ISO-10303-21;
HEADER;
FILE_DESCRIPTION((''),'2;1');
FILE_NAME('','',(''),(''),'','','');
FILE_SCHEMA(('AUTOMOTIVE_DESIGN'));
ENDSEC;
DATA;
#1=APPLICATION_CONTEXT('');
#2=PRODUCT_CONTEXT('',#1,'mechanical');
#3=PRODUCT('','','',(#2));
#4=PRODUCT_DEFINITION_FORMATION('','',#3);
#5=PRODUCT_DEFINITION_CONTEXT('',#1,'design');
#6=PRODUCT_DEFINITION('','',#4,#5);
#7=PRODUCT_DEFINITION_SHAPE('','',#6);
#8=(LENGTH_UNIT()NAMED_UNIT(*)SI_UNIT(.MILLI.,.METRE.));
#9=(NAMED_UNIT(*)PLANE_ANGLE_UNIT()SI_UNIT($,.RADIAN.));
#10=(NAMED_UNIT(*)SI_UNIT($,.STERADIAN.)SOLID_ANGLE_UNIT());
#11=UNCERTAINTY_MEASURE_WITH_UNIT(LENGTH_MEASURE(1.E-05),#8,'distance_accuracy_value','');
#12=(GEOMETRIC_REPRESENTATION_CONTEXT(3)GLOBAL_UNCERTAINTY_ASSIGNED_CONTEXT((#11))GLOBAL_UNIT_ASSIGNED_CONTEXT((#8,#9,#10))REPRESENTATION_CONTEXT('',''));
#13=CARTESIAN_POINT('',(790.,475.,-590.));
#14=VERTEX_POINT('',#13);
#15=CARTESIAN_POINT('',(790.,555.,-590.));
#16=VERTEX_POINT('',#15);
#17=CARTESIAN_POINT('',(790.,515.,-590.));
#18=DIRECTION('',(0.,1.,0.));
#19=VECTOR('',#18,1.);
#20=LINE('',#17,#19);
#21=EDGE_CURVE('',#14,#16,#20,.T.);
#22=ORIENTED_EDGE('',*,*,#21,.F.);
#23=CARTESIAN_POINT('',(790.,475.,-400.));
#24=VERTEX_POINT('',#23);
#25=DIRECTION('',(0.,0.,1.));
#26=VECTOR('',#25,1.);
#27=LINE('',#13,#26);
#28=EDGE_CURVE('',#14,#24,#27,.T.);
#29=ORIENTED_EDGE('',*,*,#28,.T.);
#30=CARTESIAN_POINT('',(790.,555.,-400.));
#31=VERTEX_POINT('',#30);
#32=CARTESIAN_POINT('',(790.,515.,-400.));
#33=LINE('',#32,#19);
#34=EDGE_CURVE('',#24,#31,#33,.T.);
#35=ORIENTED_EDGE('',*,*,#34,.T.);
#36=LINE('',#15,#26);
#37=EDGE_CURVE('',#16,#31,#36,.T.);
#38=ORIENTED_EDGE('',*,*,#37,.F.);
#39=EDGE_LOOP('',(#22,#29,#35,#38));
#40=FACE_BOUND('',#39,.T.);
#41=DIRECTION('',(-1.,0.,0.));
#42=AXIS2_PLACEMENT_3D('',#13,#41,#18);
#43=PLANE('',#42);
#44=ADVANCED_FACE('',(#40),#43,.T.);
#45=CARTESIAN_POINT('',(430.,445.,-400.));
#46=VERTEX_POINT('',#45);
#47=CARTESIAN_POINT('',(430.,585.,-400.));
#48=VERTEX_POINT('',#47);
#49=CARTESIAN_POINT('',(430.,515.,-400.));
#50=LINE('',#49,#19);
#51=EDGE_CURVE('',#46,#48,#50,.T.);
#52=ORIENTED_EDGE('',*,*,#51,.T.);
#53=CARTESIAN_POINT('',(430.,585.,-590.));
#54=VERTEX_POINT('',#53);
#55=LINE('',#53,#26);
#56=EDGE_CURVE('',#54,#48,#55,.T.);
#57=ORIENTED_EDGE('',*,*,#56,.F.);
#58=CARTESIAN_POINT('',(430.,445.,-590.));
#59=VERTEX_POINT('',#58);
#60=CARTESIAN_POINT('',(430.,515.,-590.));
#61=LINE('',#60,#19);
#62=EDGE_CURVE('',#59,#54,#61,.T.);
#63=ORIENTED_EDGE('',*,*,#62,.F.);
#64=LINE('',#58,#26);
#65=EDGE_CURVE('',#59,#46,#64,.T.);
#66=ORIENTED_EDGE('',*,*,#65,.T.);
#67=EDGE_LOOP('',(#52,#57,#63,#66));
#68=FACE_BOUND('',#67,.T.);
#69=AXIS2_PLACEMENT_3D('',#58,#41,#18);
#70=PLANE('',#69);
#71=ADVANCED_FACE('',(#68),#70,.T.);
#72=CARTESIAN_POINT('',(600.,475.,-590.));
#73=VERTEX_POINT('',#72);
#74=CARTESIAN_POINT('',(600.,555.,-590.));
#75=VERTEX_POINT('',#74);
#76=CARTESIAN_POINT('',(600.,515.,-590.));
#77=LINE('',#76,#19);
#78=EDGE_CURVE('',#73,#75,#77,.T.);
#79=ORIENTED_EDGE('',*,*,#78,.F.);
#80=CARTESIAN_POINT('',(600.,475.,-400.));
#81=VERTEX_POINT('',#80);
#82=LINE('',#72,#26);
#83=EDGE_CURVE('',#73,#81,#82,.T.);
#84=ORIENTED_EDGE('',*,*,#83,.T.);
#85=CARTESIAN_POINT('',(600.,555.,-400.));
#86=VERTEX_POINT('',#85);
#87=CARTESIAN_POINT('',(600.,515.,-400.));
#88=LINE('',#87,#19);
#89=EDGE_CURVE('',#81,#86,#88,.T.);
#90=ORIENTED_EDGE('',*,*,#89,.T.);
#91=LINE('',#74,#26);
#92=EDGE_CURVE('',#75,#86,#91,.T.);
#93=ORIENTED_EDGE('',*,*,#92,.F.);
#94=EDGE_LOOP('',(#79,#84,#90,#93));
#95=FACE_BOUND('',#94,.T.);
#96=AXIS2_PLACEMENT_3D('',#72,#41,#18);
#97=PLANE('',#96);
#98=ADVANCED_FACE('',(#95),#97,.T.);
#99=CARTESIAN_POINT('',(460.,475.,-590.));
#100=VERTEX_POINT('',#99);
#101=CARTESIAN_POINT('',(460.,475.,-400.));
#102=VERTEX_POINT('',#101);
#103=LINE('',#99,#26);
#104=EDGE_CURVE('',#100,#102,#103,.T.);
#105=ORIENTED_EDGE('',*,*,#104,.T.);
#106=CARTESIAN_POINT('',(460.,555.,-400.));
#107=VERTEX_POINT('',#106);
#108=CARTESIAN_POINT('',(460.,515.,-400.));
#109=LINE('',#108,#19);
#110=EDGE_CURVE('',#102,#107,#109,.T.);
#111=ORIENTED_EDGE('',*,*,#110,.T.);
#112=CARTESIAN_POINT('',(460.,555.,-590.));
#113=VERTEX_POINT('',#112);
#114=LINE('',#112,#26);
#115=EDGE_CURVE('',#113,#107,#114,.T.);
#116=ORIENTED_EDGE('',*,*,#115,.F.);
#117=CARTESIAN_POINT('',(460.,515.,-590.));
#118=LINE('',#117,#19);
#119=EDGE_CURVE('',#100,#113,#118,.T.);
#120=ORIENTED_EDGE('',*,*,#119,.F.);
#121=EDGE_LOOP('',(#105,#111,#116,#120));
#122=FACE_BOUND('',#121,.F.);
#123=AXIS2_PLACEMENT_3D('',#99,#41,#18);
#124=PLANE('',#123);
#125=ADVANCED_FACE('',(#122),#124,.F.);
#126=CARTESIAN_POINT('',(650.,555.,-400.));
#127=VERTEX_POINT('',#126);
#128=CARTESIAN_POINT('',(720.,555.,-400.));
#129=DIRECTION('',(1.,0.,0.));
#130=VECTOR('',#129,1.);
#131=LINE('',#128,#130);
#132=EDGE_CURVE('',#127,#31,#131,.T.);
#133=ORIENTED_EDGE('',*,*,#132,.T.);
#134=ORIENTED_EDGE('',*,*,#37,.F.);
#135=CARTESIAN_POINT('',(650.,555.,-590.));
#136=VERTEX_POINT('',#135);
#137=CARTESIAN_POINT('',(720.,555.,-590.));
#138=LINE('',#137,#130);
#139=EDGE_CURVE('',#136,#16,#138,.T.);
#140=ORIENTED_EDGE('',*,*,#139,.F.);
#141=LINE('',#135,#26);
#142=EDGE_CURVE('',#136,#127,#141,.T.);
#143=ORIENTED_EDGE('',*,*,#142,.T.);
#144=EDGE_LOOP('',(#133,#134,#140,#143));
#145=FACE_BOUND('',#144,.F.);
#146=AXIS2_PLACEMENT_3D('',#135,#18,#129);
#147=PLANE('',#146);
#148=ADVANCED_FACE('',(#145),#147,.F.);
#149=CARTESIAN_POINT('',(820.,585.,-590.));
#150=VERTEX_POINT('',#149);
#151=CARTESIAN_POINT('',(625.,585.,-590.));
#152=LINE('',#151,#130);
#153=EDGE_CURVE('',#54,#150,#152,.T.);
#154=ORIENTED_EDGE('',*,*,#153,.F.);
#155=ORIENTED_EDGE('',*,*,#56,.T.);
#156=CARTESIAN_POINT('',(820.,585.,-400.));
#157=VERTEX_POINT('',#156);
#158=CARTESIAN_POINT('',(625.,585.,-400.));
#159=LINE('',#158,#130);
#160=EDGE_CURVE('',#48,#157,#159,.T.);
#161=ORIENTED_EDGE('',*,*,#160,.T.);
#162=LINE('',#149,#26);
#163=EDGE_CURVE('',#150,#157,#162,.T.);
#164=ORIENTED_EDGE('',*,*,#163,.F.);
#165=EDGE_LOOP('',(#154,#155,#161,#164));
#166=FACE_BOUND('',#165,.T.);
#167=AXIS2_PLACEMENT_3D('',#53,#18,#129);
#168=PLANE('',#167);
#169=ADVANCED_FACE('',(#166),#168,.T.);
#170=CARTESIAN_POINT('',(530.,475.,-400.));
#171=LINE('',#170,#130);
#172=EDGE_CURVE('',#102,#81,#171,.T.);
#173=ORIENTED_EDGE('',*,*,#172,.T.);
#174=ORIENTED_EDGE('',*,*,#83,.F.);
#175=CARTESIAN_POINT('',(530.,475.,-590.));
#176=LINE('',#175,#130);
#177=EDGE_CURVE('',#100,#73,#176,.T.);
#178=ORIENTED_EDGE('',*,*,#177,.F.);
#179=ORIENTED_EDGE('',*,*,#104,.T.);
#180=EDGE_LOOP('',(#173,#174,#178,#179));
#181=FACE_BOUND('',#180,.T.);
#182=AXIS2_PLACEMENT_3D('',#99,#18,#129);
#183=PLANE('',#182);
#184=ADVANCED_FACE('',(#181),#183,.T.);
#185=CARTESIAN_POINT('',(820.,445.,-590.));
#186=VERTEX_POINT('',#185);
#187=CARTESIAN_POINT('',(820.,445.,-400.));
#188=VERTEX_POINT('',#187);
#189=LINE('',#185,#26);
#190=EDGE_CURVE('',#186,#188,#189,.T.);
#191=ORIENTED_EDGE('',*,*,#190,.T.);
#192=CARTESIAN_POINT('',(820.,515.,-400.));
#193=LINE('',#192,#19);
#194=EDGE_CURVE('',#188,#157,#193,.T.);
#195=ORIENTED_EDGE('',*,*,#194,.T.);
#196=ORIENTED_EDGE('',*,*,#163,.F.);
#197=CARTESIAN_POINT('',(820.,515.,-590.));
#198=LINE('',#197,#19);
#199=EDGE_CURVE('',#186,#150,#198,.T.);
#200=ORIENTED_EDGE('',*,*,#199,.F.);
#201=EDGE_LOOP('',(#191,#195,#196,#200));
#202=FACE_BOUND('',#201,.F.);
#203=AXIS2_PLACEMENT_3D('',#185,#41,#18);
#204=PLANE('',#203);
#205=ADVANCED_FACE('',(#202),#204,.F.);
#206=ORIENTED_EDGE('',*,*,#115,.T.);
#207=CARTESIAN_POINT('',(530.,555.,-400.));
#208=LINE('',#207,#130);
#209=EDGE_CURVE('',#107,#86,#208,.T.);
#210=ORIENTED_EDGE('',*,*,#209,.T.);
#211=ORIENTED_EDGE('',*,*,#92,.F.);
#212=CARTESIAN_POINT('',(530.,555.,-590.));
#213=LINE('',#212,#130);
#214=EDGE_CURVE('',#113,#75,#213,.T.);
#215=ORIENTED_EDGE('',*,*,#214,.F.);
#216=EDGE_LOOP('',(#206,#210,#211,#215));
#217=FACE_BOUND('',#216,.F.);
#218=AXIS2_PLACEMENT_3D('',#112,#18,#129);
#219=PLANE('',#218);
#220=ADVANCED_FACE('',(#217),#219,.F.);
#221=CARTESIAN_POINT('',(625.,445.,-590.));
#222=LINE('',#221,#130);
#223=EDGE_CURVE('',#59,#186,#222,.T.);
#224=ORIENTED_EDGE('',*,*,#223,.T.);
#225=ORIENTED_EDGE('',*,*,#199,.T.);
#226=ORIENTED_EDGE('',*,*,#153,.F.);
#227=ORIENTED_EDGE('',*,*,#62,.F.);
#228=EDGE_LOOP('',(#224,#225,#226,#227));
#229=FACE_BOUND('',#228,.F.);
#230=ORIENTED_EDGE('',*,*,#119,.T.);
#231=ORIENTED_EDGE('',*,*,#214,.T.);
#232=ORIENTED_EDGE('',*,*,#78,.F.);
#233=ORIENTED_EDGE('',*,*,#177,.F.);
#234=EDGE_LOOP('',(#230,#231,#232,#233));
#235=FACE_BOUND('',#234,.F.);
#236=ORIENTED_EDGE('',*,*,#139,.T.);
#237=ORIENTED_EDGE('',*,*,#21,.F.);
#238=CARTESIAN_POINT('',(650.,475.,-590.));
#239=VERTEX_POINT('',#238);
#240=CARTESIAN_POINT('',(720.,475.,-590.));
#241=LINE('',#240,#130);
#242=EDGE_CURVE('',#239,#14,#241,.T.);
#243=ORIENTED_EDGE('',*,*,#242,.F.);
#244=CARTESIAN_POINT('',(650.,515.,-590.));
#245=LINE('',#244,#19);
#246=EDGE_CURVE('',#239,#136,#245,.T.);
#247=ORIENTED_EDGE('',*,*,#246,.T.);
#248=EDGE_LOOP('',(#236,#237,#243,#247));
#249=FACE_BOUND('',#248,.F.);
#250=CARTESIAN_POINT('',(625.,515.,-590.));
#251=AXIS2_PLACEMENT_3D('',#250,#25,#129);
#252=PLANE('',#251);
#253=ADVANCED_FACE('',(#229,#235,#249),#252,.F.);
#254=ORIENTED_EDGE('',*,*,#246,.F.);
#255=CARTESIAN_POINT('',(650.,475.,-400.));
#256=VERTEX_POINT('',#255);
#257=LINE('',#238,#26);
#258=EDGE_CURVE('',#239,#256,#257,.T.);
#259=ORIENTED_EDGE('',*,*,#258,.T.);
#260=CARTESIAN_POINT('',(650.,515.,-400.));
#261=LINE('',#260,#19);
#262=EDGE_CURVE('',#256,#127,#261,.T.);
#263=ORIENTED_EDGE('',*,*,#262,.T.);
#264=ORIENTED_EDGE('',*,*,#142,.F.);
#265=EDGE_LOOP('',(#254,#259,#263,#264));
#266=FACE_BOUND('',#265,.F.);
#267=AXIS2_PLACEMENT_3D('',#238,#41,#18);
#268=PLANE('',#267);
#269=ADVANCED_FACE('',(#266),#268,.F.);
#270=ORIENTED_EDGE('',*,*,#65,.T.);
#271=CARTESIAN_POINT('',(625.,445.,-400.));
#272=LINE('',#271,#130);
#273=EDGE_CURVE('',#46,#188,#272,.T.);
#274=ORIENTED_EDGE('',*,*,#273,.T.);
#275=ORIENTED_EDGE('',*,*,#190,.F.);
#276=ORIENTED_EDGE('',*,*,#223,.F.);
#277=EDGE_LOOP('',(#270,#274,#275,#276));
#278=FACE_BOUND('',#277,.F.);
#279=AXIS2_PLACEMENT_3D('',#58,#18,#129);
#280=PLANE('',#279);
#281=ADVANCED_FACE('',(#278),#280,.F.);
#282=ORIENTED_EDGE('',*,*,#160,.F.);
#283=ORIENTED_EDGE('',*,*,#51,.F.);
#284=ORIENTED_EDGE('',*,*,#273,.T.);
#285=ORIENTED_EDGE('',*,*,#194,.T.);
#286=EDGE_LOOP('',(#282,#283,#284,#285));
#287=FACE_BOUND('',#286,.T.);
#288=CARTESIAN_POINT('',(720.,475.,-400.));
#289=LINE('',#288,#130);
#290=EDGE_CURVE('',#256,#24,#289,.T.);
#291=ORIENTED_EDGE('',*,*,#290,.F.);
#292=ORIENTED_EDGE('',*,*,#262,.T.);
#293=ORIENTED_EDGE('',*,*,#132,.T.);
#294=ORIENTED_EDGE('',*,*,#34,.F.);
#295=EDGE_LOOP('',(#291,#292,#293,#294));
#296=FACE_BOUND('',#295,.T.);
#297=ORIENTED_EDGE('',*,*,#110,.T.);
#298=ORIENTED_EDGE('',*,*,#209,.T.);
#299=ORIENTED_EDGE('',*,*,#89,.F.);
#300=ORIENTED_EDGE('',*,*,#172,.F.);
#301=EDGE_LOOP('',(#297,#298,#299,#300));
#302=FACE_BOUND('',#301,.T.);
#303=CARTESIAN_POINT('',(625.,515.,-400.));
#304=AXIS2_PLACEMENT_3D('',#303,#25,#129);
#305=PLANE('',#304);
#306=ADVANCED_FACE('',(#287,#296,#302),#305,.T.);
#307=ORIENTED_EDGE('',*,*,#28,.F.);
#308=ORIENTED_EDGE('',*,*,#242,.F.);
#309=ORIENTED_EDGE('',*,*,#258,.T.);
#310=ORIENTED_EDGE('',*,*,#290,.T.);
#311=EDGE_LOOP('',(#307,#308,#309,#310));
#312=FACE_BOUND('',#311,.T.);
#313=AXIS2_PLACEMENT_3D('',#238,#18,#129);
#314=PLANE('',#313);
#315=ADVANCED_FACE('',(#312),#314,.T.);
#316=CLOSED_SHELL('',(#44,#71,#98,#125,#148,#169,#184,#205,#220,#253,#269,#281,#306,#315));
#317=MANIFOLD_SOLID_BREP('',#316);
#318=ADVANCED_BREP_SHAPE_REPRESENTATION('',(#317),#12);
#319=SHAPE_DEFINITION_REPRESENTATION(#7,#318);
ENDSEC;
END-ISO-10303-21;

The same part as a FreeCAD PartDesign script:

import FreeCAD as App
import Part
import Sketcher

V = App.Vector

doc = App.newDocument("Part")
body = doc.addObject("PartDesign::Body", "Body")

sketch1 = body.newObject("Sketcher::SketchObject", "Sketch")
sketch1.AttachmentSupport = (doc.getObject("XY_Plane"), [""])
sketch1.MapMode = "FlatFace"
sketch1.addGeometry(Part.LineSegment(V(220, 110, 0), V(220, 30, 0)), False)
sketch1.addGeometry(Part.LineSegment(V(220, 30, 0), V(360, 30, 0)), False)
sketch1.addGeometry(Part.LineSegment(V(360, 30, 0), V(360, 110, 0)), False)
sketch1.addGeometry(Part.LineSegment(V(360, 110, 0), V(220, 110, 0)), False)
sketch1.addConstraint(Sketcher.Constraint("Coincident", 0, 2, 1, 1))
sketch1.addConstraint(Sketcher.Constraint("Coincident", 1, 2, 2, 1))
sketch1.addConstraint(Sketcher.Constraint("Coincident", 2, 2, 3, 1))
sketch1.addConstraint(Sketcher.Constraint("Coincident", 3, 2, 0, 1))
sketch1.addConstraint(Sketcher.Constraint("Vertical", 0))
sketch1.addConstraint(Sketcher.Constraint("Horizontal", 1))
sketch1.addConstraint(Sketcher.Constraint("Vertical", 2))
sketch1.addConstraint(Sketcher.Constraint("Horizontal", 3))
sketch1.addConstraint(Sketcher.Constraint("DistanceX", 1, 1, 1, 2, 140.0))
sketch1.addConstraint(Sketcher.Constraint("DistanceY", 0, 2, 0, 1, 80.0))
sketch1.addConstraint(Sketcher.Constraint("DistanceX", -1, 1, 0, 2, 220.0))
sketch1.addConstraint(Sketcher.Constraint("DistanceY", -1, 1, 0, 2, 30.0))
pad1 = body.newObject("PartDesign::Pad", "Pad")
pad1.Profile = sketch1
pad1.Length = 190
body2 = doc.addObject("PartDesign::Body", "Body001")
body2.AllowCompound = True

sketch2 = body2.newObject("Sketcher::SketchObject", "Sketch001")
sketch2.AttachmentSupport = (doc.getObject("XY_Plane001"), [""])
sketch2.MapMode = "FlatFace"
sketch2.addGeometry(Part.LineSegment(V(30, 110, 0), V(30, 30, 0)), False)
sketch2.addGeometry(Part.LineSegment(V(30, 30, 0), V(170, 30, 0)), False)
sketch2.addGeometry(Part.LineSegment(V(170, 30, 0), V(170, 110, 0)), False)
sketch2.addGeometry(Part.LineSegment(V(170, 110, 0), V(30, 110, 0)), False)
sketch2.addConstraint(Sketcher.Constraint("Coincident", 0, 2, 1, 1))
sketch2.addConstraint(Sketcher.Constraint("Coincident", 1, 2, 2, 1))
sketch2.addConstraint(Sketcher.Constraint("Coincident", 2, 2, 3, 1))
sketch2.addConstraint(Sketcher.Constraint("Coincident", 3, 2, 0, 1))
sketch2.addConstraint(Sketcher.Constraint("Vertical", 0))
sketch2.addConstraint(Sketcher.Constraint("Horizontal", 1))
sketch2.addConstraint(Sketcher.Constraint("Vertical", 2))
sketch2.addConstraint(Sketcher.Constraint("Horizontal", 3))
sketch2.addConstraint(Sketcher.Constraint("DistanceX", 1, 1, 1, 2, 140.0))
sketch2.addConstraint(Sketcher.Constraint("DistanceY", 0, 2, 0, 1, 80.0))
sketch2.addConstraint(Sketcher.Constraint("DistanceX", -1, 1, 0, 2, 30.0))
sketch2.addConstraint(Sketcher.Constraint("DistanceY", -1, 1, 0, 2, 30.0))
pad2 = body2.newObject("PartDesign::Pad", "Pad001")
pad2.Profile = sketch2
pad2.Length = 190
doc.recompute()

boolean = body2.newObject("PartDesign::Boolean", "Boolean")
boolean.Type = "Fuse"
boolean.addObjects([body])
body3 = doc.addObject("PartDesign::Body", "Body002")

sketch3 = body3.newObject("Sketcher::SketchObject", "Sketch002")
sketch3.AttachmentSupport = (doc.getObject("XY_Plane002"), [""])
sketch3.MapMode = "FlatFace"
sketch3.addGeometry(Part.LineSegment(V(0, 140, 0), V(0, 0, 0)), False)
sketch3.addGeometry(Part.LineSegment(V(0, 0, 0), V(390, 0, 0)), False)
sketch3.addGeometry(Part.LineSegment(V(390, 0, 0), V(390, 140, 0)), False)
sketch3.addGeometry(Part.LineSegment(V(390, 140, 0), V(0, 140, 0)), False)
sketch3.addConstraint(Sketcher.Constraint("Coincident", 0, 2, 1, 1))
sketch3.addConstraint(Sketcher.Constraint("Coincident", 1, 2, 2, 1))
sketch3.addConstraint(Sketcher.Constraint("Coincident", 2, 2, 3, 1))
sketch3.addConstraint(Sketcher.Constraint("Coincident", 3, 2, 0, 1))
sketch3.addConstraint(Sketcher.Constraint("Vertical", 0))
sketch3.addConstraint(Sketcher.Constraint("Horizontal", 1))
sketch3.addConstraint(Sketcher.Constraint("Vertical", 2))
sketch3.addConstraint(Sketcher.Constraint("Horizontal", 3))
sketch3.addConstraint(Sketcher.Constraint("Coincident", 0, 2, -1, 1))
sketch3.addConstraint(Sketcher.Constraint("DistanceX", 1, 1, 1, 2, 390.0))
sketch3.addConstraint(Sketcher.Constraint("DistanceY", 0, 2, 0, 1, 140.0))
pad3 = body3.newObject("PartDesign::Pad", "Pad002")
pad3.Profile = sketch3
pad3.Length = 190
doc.recompute()

boolean2 = body3.newObject("PartDesign::Boolean", "Boolean001")
boolean2.Type = "Cut"
boolean2.addObjects([body2])
body4 = doc.addObject("PartDesign::Body", "Body003")
doc.recompute()

body3.Placement = App.Placement(V(430, 445, -590), App.Rotation(V(0, 0, 1), 0))
boolean3 = body4.newObject("PartDesign::Boolean", "Boolean002")
boolean3.Type = "Fuse"
boolean3.addObjects([body3])

doc.recompute()
